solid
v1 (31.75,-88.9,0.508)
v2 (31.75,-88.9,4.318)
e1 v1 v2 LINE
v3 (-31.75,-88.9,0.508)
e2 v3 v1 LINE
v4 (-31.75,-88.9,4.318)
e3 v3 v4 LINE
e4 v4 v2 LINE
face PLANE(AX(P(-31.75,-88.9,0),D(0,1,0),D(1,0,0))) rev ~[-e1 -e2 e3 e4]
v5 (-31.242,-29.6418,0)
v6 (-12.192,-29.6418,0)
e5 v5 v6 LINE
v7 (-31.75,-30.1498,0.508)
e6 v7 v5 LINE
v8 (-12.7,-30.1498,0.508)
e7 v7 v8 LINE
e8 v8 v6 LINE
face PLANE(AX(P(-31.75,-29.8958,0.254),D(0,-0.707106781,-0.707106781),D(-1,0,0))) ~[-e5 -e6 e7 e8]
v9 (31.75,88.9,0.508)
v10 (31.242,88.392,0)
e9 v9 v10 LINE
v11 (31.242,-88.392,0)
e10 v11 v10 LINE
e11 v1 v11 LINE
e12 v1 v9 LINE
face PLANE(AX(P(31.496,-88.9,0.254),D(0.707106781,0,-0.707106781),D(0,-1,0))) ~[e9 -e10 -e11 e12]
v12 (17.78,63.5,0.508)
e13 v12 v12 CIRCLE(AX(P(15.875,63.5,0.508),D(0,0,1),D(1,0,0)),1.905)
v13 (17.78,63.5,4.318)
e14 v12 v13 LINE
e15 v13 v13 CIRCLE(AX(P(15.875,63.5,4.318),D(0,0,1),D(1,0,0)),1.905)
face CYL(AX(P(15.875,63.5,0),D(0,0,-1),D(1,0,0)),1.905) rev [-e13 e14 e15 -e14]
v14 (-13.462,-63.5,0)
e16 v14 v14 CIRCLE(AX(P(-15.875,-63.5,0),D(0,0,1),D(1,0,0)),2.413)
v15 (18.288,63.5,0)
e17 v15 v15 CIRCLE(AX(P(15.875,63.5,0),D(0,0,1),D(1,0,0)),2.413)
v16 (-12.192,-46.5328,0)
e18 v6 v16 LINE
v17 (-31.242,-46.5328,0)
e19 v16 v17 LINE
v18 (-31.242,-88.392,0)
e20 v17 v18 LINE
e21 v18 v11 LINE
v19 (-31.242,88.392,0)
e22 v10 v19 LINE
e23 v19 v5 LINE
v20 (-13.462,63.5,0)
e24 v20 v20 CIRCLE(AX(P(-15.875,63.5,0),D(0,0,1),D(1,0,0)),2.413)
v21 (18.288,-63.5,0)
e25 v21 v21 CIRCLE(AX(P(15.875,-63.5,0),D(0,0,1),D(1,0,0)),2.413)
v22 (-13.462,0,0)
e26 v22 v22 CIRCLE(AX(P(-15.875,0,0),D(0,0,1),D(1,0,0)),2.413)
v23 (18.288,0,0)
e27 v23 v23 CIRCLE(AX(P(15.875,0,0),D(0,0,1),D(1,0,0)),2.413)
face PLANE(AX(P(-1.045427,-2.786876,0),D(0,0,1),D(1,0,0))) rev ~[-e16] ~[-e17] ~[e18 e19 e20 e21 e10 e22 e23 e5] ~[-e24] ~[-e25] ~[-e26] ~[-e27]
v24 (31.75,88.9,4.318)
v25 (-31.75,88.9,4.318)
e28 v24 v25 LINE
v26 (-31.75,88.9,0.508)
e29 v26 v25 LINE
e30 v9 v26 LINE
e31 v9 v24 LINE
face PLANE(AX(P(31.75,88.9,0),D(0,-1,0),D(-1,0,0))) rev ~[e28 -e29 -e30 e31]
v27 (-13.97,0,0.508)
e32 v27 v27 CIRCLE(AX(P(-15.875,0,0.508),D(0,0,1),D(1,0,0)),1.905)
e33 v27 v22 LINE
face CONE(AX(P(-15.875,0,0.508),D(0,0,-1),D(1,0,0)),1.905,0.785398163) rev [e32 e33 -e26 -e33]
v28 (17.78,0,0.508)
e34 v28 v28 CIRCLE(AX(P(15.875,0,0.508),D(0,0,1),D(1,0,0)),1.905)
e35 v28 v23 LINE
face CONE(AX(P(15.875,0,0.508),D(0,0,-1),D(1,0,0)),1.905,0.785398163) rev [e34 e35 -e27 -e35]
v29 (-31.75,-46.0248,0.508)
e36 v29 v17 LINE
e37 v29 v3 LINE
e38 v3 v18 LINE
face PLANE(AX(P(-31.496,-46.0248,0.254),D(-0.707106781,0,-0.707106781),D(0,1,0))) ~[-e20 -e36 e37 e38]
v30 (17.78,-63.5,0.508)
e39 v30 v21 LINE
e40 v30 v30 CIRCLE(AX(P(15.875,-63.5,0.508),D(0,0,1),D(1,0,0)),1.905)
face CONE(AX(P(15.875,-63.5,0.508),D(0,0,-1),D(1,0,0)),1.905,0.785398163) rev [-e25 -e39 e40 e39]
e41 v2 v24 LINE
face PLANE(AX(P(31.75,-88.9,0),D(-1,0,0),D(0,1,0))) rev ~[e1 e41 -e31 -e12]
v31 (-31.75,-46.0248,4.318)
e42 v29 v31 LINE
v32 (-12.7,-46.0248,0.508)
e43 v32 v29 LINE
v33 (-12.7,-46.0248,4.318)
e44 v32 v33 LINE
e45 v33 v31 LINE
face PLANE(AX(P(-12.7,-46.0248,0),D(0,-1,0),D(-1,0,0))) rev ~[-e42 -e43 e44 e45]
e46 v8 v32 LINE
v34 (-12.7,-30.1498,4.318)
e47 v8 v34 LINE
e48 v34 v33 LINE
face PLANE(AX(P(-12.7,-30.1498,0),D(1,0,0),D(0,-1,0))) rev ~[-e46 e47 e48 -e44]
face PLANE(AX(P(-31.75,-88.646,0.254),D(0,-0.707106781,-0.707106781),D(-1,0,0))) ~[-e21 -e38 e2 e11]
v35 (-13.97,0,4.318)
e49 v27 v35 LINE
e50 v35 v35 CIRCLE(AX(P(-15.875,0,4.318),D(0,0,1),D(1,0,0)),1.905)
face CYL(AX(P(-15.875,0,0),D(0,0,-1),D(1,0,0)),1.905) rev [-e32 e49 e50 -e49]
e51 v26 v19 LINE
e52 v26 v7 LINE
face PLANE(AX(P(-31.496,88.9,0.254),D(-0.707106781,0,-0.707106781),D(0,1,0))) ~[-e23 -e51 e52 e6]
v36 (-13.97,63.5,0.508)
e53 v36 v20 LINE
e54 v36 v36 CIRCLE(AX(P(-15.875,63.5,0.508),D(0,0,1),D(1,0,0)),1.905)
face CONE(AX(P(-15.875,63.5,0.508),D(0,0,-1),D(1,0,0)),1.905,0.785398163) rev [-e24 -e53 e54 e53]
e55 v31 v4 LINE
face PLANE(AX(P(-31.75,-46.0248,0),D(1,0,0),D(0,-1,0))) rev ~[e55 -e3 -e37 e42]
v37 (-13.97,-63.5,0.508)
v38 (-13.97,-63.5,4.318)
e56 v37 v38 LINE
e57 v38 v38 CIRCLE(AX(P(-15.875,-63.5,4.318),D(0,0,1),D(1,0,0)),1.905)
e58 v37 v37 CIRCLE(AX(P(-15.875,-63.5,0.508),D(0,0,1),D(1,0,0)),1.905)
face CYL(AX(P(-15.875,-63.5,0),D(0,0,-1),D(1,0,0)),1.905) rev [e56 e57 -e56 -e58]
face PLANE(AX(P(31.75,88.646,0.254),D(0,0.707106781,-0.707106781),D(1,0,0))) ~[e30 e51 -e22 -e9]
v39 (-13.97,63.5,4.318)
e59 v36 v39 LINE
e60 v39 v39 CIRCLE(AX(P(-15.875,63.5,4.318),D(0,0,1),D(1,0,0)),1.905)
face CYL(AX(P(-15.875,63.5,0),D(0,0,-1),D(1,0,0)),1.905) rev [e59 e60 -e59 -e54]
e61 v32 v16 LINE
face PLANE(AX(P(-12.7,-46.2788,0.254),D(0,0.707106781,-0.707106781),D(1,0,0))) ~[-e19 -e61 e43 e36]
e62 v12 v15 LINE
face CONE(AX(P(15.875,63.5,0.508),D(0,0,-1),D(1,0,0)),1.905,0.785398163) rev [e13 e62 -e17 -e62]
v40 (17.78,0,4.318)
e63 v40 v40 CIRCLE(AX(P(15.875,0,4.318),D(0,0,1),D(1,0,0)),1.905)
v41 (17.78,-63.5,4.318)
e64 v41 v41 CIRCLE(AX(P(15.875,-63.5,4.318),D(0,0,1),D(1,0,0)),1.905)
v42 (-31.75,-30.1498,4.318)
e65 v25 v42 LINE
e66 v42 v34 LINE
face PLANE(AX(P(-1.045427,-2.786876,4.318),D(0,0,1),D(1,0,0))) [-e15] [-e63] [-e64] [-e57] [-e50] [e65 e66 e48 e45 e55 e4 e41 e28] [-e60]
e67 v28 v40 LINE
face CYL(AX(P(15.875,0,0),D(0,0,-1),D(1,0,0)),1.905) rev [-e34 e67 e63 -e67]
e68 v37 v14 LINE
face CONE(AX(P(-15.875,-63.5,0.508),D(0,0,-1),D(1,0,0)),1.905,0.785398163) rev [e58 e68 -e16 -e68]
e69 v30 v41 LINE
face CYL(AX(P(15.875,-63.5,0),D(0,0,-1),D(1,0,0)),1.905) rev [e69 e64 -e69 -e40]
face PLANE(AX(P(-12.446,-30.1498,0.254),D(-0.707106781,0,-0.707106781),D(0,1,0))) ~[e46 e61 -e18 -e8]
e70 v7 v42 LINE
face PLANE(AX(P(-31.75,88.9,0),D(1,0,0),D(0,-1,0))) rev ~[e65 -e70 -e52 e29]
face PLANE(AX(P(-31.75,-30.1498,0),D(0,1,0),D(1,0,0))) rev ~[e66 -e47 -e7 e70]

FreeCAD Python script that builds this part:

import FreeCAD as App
import Part
import Sketcher
Q = App.Units.Quantity


def edges_at(feature, points):
    """Names of the edges that pass closest to the given points."""
    edges = feature.Shape.Edges
    near = lambda p: min(range(len(edges)), key=lambda i: edges[i].distToShape(Part.Vertex(*p))[0])
    return sorted({f"Edge{near(p) + 1}" for p in points})


def add_polygon(sketch, points):
    """Adds a closed chain of lines whose ends are joined by coincident constraints."""
    first, n = sketch.GeometryCount, len(points)
    for a, b in zip(points, points[1:] + points[:1]):
        sketch.addGeometry(Part.LineSegment(App.Vector(*a, 0), App.Vector(*b, 0)), False)
    for i in range(n):
        sketch.addConstraint(Sketcher.Constraint("Coincident", first + i, 2, first + (i + 1) % n, 1))

doc = App.newDocument("Part")
params = doc.addObject("Spreadsheet::Sheet", "Params")
for row, (alias, value) in enumerate([
    ("sketch1_diameter", "0.15 in"),
    ("sketch1_height", "7 in"),
    ("sketch1_width", "2.5 in"),
    ("sketch1_width2", "0.75 in"),
    ("sketch1_height2", "4.687 in"),
    ("pad1_length", "0.17 in"),
    ("chamfer_size", "0.02 in"),
], start=1):
    params.set(f"A{row}", alias)
    params.set(f"B{row}", "=" + value)
    params.setAlias(f"B{row}", alias)

body = doc.addObject("PartDesign::Body", "Body")

# Sketch on XY plane
sketch1 = body.newObject("Sketcher::SketchObject", "Sketch")
sketch1.AttachmentSupport = (doc.getObject("XY_Plane"), [""])
sketch1.MapMode = "FlatFace"
add_polygon(sketch1, [(-31.8, -88.9), (31.8, -88.9), (31.8, 88.9), (-31.8, 88.9), (-31.8, -30.1), (-12.7, -30.1), (-12.7, -46), (-31.8, -46)])  # lines 0-7
sketch1.addGeometry(Part.Circle(App.Vector(-15.9, -63.5, 0), App.Vector(0, 0, 1), 1.9), False)  # 8
sketch1.addGeometry(Part.Circle(App.Vector(15.9, -63.5, 0), App.Vector(0, 0, 1), 1.9), False)  # 9
sketch1.addGeometry(Part.Circle(App.Vector(-15.9, 0, 0), App.Vector(0, 0, 1), 1.9), False)  # 10
sketch1.addGeometry(Part.Circle(App.Vector(-15.9, 63.5, 0), App.Vector(0, 0, 1), 1.9), False)  # 11
sketch1.addGeometry(Part.Circle(App.Vector(15.9, 0, 0), App.Vector(0, 0, 1), 1.9), False)  # 12
sketch1.addGeometry(Part.Circle(App.Vector(15.9, 63.5, 0), App.Vector(0, 0, 1), 1.9), False)  # 13
sketch1.addConstraint([
    Sketcher.Constraint("Horizontal", 0),
    Sketcher.Constraint("Vertical", 1),
    Sketcher.Constraint("Horizontal", 2),
    Sketcher.Constraint("Vertical", 3),
    Sketcher.Constraint("Horizontal", 4),
    Sketcher.Constraint("Vertical", 5),
    Sketcher.Constraint("Horizontal", 6),
    Sketcher.Constraint("Vertical", 7),
    Sketcher.Constraint("Equal", 8, 9),
    Sketcher.Constraint("Equal", 9, 10),
    Sketcher.Constraint("Equal", 10, 11),
    Sketcher.Constraint("Equal", 11, 12),
    Sketcher.Constraint("Equal", 12, 13),
    Sketcher.Constraint("Symmetric", 9, 3, 11, 3, -1, 1),
    Sketcher.Constraint("Symmetric", 10, 3, 12, 3, -1, 1),
    Sketcher.Constraint("Symmetric", 8, 3, 13, 3, -1, 1),
    Sketcher.Constraint("Symmetric", 0, 2, 2, 2, -1, 1),
    Sketcher.Constraint("Symmetric", 8, 3, 9, 3, -2),
    Sketcher.Constraint("PointOnObject", 10, 3, -1),
    Sketcher.Constraint("Vertical", 8, 3, 10, 3),
    Sketcher.Constraint("Vertical", 3, 2, 6, 2),
    Sketcher.Constraint("Diameter", 8, Q("0.15 in")),
    Sketcher.Constraint("DistanceY", 1, 1, 1, 2, Q("7 in")),
    Sketcher.Constraint("DistanceX", 0, 1, 0, 2, Q("2.5 in")),
    Sketcher.Constraint("DistanceY", 8, 3, 11, 3, Q("5 in")),
    Sketcher.Constraint("DistanceX", 4, 1, 4, 2, Q("0.75 in")),
    Sketcher.Constraint("DistanceY", 3, 2, 3, 1, Q("4.687 in")),
    Sketcher.Constraint("DistanceY", 5, 2, 5, 1, Q("0.625 in")),
    Sketcher.Constraint("DistanceX", 8, 3, 9, 3, Q("1.25 in")),
])
sketch1.setExpression("Constraints[29]", "Params.sketch1_diameter")
sketch1.setExpression("Constraints[30]", "Params.sketch1_height")
sketch1.setExpression("Constraints[31]", "Params.sketch1_width")
sketch1.setExpression("Constraints[33]", "Params.sketch1_width2")
sketch1.setExpression("Constraints[34]", "Params.sketch1_height2")
pad1 = body.newObject("PartDesign::Pad", "Pad")
pad1.Profile = sketch1
pad1.setExpression("Length", "Params.pad1_length")
doc.recompute()

chamfer = body.newObject("PartDesign::Chamfer", "Chamfer")
chamfer.Base = (pad1, edges_at(pad1, [
    (0, -88.9, 0),
    (-31.75, -67.462, 0),
    (-22.225, -46.025, 0),
    (-12.7, -38.087, 0),
    (-22.225, -30.15, 0),
    (-31.75, 29.375, 0),
    (0, 88.9, 0),
    (31.75, 0, 0),
    (-17.78, 0, 0),
    (13.97, 0, 0),
    (13.97, -63.5, 0),
    (-17.78, -63.5, 0),
    (-17.78, 63.5, 0),
    (13.97, 63.5, 0),
]))
chamfer.setExpression("Size", "Params.chamfer_size")

doc.recompute()
